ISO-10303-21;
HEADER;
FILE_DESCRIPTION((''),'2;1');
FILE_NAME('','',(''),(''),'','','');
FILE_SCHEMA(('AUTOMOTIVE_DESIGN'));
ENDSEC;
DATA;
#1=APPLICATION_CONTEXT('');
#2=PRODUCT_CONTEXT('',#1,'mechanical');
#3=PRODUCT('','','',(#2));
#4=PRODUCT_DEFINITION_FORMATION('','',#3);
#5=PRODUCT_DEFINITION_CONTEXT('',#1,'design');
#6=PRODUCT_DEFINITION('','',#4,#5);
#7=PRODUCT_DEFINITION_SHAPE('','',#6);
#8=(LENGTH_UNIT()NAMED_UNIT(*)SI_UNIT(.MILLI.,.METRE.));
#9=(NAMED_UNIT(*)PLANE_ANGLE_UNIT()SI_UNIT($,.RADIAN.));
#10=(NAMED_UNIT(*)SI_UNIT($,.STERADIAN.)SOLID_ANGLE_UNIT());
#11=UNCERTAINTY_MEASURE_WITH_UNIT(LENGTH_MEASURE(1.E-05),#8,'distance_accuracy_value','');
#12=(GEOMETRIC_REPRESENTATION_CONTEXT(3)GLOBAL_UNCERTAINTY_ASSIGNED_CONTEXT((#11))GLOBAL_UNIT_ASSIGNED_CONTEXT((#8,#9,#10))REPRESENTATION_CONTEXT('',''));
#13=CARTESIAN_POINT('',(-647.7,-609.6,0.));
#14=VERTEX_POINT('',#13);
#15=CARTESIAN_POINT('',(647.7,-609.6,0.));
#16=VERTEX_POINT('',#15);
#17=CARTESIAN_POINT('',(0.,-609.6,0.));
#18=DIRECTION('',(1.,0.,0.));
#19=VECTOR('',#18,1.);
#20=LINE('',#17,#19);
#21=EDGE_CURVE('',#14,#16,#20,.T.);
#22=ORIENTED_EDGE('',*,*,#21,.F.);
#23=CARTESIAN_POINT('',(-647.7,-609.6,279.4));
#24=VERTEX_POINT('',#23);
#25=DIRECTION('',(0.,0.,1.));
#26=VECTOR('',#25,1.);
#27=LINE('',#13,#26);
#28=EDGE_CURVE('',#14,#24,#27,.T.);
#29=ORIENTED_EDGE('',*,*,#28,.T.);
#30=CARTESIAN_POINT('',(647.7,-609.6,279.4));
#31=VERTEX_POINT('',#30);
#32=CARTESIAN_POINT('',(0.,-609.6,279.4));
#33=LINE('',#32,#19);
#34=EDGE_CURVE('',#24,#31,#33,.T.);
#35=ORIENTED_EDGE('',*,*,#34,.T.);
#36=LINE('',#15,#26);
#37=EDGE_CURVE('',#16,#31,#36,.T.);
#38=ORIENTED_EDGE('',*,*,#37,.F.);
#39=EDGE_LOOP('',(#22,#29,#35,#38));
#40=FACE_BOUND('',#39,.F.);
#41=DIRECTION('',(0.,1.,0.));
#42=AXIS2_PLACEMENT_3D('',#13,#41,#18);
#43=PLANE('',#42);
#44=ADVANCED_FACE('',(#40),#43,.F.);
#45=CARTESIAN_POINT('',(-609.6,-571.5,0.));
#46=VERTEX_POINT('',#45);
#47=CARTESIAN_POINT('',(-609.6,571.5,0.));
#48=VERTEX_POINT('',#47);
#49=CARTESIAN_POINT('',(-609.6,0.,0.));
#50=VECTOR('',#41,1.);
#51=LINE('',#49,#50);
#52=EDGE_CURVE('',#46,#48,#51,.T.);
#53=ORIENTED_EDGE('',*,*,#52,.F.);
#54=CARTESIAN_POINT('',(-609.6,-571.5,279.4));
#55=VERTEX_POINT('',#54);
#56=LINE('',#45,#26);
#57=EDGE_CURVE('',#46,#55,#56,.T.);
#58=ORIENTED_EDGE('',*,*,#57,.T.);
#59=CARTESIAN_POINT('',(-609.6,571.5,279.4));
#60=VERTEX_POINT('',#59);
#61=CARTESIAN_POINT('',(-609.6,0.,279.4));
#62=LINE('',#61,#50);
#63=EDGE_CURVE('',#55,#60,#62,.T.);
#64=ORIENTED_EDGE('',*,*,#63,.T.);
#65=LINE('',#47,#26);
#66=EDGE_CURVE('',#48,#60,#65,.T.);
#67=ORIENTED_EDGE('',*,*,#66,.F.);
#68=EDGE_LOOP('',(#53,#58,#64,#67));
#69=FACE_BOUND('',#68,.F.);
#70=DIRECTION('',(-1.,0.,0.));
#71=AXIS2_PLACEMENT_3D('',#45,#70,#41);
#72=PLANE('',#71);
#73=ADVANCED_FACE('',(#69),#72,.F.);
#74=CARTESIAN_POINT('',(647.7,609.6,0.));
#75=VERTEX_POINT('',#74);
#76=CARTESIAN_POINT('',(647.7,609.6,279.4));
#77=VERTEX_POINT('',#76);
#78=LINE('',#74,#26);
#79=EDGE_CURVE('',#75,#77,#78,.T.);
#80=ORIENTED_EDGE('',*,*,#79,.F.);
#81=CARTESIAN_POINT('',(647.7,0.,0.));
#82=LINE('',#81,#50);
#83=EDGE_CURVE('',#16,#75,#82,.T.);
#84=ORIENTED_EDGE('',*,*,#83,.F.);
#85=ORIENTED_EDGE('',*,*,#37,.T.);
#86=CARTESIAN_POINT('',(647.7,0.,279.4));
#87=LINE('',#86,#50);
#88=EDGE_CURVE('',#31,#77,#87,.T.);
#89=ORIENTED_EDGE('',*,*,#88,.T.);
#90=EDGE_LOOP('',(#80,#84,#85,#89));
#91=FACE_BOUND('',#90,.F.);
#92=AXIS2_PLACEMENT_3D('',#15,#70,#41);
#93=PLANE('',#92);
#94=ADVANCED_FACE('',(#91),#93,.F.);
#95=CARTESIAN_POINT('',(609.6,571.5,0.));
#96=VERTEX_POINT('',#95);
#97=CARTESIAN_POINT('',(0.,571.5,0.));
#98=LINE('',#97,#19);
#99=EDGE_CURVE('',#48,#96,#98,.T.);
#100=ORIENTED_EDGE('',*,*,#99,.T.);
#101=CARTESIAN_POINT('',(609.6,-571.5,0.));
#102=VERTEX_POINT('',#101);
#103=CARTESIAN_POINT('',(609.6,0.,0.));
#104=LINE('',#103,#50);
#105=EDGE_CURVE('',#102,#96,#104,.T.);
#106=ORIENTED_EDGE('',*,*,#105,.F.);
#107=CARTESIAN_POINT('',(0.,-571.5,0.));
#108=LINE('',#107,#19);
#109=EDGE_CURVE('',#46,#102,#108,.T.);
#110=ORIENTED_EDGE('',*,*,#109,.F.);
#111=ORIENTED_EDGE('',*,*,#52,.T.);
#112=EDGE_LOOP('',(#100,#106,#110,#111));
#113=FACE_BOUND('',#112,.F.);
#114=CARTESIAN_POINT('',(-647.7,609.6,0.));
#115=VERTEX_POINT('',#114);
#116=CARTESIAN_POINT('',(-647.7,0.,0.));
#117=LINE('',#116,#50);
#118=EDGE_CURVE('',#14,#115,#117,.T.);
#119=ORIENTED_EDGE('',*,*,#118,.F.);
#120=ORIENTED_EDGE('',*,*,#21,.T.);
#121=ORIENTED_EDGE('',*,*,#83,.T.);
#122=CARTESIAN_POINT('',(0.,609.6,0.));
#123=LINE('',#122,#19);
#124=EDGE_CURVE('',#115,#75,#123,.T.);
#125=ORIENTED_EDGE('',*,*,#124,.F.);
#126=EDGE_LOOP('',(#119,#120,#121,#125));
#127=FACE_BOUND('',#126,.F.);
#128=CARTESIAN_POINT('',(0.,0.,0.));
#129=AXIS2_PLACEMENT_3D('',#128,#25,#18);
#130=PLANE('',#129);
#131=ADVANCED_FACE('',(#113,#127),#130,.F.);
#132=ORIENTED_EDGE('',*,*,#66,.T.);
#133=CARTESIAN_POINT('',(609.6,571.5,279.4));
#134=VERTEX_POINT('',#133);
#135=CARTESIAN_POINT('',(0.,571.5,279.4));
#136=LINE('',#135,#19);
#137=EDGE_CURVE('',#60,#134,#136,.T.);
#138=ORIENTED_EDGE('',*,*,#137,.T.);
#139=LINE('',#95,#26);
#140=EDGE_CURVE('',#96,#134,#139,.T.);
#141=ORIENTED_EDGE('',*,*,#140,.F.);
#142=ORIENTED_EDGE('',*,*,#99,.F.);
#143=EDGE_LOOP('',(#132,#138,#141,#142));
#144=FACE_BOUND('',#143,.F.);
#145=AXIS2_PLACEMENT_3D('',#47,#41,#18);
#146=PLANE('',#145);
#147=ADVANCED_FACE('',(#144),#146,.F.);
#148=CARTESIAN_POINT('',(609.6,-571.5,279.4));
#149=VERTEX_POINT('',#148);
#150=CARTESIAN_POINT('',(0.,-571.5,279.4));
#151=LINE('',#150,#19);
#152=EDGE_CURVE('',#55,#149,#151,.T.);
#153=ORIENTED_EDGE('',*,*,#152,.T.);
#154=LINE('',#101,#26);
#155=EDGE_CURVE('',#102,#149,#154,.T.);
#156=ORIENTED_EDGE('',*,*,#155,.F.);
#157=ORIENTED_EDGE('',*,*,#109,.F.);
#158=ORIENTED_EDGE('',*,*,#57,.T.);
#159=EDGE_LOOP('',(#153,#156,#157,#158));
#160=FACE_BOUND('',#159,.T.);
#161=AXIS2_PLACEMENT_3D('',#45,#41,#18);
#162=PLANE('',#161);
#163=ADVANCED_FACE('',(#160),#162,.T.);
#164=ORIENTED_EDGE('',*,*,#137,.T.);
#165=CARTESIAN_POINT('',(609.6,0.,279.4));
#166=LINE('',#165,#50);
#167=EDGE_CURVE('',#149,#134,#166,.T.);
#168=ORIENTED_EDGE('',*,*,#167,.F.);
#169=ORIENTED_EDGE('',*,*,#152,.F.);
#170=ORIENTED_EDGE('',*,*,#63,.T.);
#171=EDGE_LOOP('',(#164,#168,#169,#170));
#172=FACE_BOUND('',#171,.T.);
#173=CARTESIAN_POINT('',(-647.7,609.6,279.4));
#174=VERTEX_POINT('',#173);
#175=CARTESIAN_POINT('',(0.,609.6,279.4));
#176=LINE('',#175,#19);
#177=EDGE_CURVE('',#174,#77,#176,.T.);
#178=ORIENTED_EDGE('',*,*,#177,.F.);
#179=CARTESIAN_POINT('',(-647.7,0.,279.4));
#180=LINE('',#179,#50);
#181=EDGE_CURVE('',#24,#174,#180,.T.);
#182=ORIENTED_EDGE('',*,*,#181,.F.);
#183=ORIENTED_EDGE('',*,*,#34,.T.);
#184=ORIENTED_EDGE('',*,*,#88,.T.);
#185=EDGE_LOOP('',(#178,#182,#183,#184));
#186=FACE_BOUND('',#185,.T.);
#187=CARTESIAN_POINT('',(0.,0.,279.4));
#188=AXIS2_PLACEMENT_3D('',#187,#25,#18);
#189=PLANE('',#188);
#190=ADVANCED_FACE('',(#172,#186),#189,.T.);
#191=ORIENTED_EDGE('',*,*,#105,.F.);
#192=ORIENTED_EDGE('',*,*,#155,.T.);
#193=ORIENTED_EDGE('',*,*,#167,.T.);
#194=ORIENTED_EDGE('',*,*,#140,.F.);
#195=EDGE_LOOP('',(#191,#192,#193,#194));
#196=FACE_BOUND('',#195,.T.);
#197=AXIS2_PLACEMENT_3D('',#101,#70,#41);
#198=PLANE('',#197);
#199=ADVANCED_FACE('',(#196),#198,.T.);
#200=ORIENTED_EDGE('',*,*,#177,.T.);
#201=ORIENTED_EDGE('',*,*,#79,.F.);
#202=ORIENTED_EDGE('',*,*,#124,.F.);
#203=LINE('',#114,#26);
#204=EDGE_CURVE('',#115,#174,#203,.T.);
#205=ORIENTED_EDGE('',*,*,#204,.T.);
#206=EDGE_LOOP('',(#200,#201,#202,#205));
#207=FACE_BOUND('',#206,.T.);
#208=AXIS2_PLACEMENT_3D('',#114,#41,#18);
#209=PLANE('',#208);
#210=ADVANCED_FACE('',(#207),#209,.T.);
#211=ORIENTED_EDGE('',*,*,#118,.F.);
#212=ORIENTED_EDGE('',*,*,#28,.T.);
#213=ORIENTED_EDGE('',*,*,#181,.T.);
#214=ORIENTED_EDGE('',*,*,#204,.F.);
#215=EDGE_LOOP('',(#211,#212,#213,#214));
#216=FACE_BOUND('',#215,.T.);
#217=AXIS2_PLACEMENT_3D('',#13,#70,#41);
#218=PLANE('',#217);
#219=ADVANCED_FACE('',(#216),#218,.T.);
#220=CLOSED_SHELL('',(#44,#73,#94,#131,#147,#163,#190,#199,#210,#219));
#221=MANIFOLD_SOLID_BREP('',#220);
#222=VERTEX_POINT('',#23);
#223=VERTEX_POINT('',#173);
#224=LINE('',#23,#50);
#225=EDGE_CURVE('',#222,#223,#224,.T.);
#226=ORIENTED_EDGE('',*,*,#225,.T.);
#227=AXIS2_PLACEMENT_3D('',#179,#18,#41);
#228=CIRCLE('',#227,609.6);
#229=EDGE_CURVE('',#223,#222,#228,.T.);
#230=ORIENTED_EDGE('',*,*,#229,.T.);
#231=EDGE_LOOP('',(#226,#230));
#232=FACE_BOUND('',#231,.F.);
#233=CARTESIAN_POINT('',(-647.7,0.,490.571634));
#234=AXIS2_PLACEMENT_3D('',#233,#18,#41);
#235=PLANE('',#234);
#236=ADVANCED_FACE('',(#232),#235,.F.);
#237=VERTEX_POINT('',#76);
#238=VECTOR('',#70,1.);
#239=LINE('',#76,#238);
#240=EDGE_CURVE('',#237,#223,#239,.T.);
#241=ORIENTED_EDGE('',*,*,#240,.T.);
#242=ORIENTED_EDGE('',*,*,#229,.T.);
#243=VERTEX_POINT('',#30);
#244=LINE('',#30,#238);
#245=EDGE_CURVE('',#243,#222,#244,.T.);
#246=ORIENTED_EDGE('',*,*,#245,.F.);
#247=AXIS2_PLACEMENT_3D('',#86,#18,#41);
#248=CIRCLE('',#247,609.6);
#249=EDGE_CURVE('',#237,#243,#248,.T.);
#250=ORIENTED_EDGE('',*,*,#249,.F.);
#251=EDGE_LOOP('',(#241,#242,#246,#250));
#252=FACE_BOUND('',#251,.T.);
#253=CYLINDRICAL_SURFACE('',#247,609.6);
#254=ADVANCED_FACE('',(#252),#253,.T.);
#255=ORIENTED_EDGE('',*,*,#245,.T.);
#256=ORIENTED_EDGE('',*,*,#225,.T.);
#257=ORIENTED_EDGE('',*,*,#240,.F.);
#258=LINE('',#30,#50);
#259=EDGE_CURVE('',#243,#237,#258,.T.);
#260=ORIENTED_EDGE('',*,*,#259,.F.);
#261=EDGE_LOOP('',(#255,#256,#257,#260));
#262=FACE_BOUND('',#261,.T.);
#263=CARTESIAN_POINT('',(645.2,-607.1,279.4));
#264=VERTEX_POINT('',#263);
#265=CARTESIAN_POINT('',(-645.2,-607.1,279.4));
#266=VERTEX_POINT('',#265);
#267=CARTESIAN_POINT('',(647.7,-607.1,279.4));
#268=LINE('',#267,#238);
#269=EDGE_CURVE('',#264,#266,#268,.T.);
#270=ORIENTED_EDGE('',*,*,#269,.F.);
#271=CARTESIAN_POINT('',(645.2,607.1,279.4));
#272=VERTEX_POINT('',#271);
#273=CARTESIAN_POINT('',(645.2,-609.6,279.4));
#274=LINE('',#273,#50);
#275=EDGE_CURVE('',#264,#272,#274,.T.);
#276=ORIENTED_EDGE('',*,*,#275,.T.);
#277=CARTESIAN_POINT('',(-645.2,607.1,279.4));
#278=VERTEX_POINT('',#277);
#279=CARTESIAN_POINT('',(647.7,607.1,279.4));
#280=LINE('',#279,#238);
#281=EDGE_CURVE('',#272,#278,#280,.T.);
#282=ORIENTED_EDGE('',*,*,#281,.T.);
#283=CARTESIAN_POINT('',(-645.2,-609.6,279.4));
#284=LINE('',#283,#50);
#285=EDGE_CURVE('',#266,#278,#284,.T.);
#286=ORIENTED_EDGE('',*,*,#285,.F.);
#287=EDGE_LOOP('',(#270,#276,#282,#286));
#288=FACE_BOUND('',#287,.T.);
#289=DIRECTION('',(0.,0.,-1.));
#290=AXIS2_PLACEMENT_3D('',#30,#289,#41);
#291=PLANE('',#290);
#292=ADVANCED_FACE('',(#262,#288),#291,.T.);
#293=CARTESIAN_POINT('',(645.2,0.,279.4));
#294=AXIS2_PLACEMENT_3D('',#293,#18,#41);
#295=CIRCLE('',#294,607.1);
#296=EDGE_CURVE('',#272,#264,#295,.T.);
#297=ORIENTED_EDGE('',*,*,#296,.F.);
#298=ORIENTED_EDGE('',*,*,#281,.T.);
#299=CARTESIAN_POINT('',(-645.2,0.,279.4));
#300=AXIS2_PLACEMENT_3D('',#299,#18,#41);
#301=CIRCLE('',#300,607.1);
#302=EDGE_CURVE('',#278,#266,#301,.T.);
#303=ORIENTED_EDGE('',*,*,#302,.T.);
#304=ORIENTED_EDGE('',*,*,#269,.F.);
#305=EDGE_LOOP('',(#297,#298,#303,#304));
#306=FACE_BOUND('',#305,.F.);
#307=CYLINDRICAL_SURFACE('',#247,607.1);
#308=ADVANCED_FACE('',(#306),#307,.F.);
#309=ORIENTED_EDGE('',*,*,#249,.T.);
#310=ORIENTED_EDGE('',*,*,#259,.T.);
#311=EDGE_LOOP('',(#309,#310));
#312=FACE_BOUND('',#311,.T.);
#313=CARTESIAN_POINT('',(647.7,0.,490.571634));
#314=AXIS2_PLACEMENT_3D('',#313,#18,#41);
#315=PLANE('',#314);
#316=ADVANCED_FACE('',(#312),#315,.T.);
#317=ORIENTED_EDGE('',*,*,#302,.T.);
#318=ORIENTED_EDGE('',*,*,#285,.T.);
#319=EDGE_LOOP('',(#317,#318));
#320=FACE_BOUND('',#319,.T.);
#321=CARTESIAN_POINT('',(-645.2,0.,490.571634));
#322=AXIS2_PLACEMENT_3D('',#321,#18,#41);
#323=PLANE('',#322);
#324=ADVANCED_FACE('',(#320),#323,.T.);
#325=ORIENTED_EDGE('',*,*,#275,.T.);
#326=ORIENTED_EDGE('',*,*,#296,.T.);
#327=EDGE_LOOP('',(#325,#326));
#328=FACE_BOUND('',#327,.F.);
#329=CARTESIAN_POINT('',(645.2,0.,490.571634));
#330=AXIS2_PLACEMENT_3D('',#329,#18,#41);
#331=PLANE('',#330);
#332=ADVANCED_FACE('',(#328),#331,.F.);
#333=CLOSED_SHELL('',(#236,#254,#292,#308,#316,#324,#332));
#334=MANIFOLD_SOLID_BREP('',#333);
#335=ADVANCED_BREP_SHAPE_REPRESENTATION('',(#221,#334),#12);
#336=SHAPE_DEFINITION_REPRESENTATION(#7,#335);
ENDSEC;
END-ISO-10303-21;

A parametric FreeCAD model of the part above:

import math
import FreeCAD as App
import Part
import Sketcher
from FreeCAD import Vector
Q = App.Units.Quantity


def faces_at(feature, points):
    """Names of the faces that lie closest to the given points."""
    faces = feature.Shape.Faces
    near = lambda p: min(range(len(faces)), key=lambda i: faces[i].distToShape(Part.Vertex(*p))[0])
    return sorted({f"Face{near(p) + 1}" for p in points})

doc = App.newDocument("Part")
params = doc.addObject("Spreadsheet::Sheet", "Params")
for row, (alias, value) in enumerate([
    ("sketch1_width", "51 in"),
    ("sketch1_width2", "48 in"),
    ("sketch1_height", "45 in"),
    ("pad1_length", "11 in"),
    ("sketch2_radius", "24 in"),
    ("pad2_length", "51 in"),
    ("thickness_wall", "2.5 mm"),
], start=1):
    params.set(f"A{row}", alias)
    params.set(f"B{row}", "=" + value)
    params.setAlias(f"B{row}", alias)

body = doc.addObject("PartDesign::Body", "Body")

sketch1 = body.newObject("Sketcher::SketchObject", "Sketch")
sketch1.AttachmentSupport = (doc.getObject("XY_Plane"), [""])
sketch1.MapMode = "FlatFace"
sketch1.addGeometry(Part.LineSegment(Vector(-648, 610, 0), Vector(-648, -610, 0)), False)
sketch1.addGeometry(Part.LineSegment(Vector(-648, -610, 0), Vector(648, -610, 0)), False)
sketch1.addGeometry(Part.LineSegment(Vector(648, -610, 0), Vector(648, 610, 0)), False)
sketch1.addGeometry(Part.LineSegment(Vector(648, 610, 0), Vector(-648, 610, 0)), False)
sketch1.addGeometry(Part.LineSegment(Vector(610, -572, 0), Vector(-610, -572, 0)), False)
sketch1.addGeometry(Part.LineSegment(Vector(-610, -572, 0), Vector(-610, 572, 0)), False)
sketch1.addGeometry(Part.LineSegment(Vector(-610, 572, 0), Vector(610, 572, 0)), False)
sketch1.addGeometry(Part.LineSegment(Vector(610, 572, 0), Vector(610, -572, 0)), False)
sketch1.addConstraint(Sketcher.Constraint("Coincident", 0, 2, 1, 1))
sketch1.addConstraint(Sketcher.Constraint("Coincident", 1, 2, 2, 1))
sketch1.addConstraint(Sketcher.Constraint("Coincident", 2, 2, 3, 1))
sketch1.addConstraint(Sketcher.Constraint("Coincident", 3, 2, 0, 1))
sketch1.addConstraint(Sketcher.Constraint("Coincident", 4, 2, 5, 1))
sketch1.addConstraint(Sketcher.Constraint("Coincident", 5, 2, 6, 1))
sketch1.addConstraint(Sketcher.Constraint("Coincident", 6, 2, 7, 1))
sketch1.addConstraint(Sketcher.Constraint("Coincident", 7, 2, 4, 1))
sketch1.addConstraint(Sketcher.Constraint("Vertical", 0))
sketch1.addConstraint(Sketcher.Constraint("Horizontal", 1))
sketch1.addConstraint(Sketcher.Constraint("Vertical", 2))
sketch1.addConstraint(Sketcher.Constraint("Horizontal", 3))
sketch1.addConstraint(Sketcher.Constraint("Horizontal", 4))
sketch1.addConstraint(Sketcher.Constraint("Vertical", 5))
sketch1.addConstraint(Sketcher.Constraint("Horizontal", 6))
sketch1.addConstraint(Sketcher.Constraint("Vertical", 7))
sketch1.addConstraint(Sketcher.Constraint("Symmetric", 0, 2, 2, 2, -1, 1))
sketch1.addConstraint(Sketcher.Constraint("Symmetric", 4, 2, 6, 2, -1, 1))
sketch1.addConstraint(Sketcher.Constraint("Equal", 6, 0))
sketch1.addConstraint(Sketcher.Constraint("DistanceX", 1, 1, 1, 2, Q("51 in")))
sketch1.addConstraint(Sketcher.Constraint("DistanceX", 4, 2, 4, 1, Q("48 in")))
sketch1.addConstraint(Sketcher.Constraint("DistanceY", 5, 1, 5, 2, Q("45 in")))
sketch1.setExpression("Constraints[19]", "Params.sketch1_width")
sketch1.setExpression("Constraints[20]", "Params.sketch1_width2")
sketch1.setExpression("Constraints[21]", "Params.sketch1_height")
pad1 = body.newObject("PartDesign::Pad", "Pad")
pad1.Profile = sketch1
pad1.setExpression("Length", "Params.pad1_length")
body2 = doc.addObject("PartDesign::Body", "Body001")

sketch2 = body2.newObject("Sketcher::SketchObject", "Sketch001")
sketch2.AttachmentSupport = (doc.getObject("YZ_Plane001"), [""])
sketch2.MapMode = "FlatFace"
sketch2.AttachmentOffset = App.Placement(Vector(0, 0, 25.5 * 25.4), App.Rotation())
sketch2.addGeometry(Part.LineSegment(Vector(-610, 279, 0), Vector(610, 279, 0)), False)
sketch2.addGeometry(Part.ArcOfCircle(Part.Circle(Vector(0, 279, 0), Vector(0, 0, 1), 610), math.radians(0), math.radians(180)), False)
sketch2.addConstraint(Sketcher.Constraint("Coincident", 0, 1, 1, 2))
sketch2.addConstraint(Sketcher.Constraint("Coincident", 1, 1, 0, 2))
sketch2.addConstraint(Sketcher.Constraint("Horizontal", 0))
sketch2.addConstraint(Sketcher.Constraint("PointOnObject", 1, 3, -2))
sketch2.addConstraint(Sketcher.Constraint("Horizontal", 1, 3, 0, 1))
sketch2.addConstraint(Sketcher.Constraint("Radius", 1, Q("24 in")))
sketch2.addConstraint(Sketcher.Constraint("DistanceY", -1, 1, 1, 3, Q("11 in")))
sketch2.setExpression("Constraints[5]", "Params.sketch2_radius")
pad2 = body2.newObject("PartDesign::Pad", "Pad001")
pad2.Profile = sketch2
pad2.setExpression("Length", "Params.pad2_length")
pad2.Reversed = True
doc.recompute()

thickness = body2.newObject("PartDesign::Thickness", "Thickness")
thickness.Base = (pad2, faces_at(pad2, [(0, 0, 279.4)]))
thickness.setExpression("Value", "Params.thickness_wall")
thickness.Reversed = True
thickness.Join = "Arc"

doc.recompute()
